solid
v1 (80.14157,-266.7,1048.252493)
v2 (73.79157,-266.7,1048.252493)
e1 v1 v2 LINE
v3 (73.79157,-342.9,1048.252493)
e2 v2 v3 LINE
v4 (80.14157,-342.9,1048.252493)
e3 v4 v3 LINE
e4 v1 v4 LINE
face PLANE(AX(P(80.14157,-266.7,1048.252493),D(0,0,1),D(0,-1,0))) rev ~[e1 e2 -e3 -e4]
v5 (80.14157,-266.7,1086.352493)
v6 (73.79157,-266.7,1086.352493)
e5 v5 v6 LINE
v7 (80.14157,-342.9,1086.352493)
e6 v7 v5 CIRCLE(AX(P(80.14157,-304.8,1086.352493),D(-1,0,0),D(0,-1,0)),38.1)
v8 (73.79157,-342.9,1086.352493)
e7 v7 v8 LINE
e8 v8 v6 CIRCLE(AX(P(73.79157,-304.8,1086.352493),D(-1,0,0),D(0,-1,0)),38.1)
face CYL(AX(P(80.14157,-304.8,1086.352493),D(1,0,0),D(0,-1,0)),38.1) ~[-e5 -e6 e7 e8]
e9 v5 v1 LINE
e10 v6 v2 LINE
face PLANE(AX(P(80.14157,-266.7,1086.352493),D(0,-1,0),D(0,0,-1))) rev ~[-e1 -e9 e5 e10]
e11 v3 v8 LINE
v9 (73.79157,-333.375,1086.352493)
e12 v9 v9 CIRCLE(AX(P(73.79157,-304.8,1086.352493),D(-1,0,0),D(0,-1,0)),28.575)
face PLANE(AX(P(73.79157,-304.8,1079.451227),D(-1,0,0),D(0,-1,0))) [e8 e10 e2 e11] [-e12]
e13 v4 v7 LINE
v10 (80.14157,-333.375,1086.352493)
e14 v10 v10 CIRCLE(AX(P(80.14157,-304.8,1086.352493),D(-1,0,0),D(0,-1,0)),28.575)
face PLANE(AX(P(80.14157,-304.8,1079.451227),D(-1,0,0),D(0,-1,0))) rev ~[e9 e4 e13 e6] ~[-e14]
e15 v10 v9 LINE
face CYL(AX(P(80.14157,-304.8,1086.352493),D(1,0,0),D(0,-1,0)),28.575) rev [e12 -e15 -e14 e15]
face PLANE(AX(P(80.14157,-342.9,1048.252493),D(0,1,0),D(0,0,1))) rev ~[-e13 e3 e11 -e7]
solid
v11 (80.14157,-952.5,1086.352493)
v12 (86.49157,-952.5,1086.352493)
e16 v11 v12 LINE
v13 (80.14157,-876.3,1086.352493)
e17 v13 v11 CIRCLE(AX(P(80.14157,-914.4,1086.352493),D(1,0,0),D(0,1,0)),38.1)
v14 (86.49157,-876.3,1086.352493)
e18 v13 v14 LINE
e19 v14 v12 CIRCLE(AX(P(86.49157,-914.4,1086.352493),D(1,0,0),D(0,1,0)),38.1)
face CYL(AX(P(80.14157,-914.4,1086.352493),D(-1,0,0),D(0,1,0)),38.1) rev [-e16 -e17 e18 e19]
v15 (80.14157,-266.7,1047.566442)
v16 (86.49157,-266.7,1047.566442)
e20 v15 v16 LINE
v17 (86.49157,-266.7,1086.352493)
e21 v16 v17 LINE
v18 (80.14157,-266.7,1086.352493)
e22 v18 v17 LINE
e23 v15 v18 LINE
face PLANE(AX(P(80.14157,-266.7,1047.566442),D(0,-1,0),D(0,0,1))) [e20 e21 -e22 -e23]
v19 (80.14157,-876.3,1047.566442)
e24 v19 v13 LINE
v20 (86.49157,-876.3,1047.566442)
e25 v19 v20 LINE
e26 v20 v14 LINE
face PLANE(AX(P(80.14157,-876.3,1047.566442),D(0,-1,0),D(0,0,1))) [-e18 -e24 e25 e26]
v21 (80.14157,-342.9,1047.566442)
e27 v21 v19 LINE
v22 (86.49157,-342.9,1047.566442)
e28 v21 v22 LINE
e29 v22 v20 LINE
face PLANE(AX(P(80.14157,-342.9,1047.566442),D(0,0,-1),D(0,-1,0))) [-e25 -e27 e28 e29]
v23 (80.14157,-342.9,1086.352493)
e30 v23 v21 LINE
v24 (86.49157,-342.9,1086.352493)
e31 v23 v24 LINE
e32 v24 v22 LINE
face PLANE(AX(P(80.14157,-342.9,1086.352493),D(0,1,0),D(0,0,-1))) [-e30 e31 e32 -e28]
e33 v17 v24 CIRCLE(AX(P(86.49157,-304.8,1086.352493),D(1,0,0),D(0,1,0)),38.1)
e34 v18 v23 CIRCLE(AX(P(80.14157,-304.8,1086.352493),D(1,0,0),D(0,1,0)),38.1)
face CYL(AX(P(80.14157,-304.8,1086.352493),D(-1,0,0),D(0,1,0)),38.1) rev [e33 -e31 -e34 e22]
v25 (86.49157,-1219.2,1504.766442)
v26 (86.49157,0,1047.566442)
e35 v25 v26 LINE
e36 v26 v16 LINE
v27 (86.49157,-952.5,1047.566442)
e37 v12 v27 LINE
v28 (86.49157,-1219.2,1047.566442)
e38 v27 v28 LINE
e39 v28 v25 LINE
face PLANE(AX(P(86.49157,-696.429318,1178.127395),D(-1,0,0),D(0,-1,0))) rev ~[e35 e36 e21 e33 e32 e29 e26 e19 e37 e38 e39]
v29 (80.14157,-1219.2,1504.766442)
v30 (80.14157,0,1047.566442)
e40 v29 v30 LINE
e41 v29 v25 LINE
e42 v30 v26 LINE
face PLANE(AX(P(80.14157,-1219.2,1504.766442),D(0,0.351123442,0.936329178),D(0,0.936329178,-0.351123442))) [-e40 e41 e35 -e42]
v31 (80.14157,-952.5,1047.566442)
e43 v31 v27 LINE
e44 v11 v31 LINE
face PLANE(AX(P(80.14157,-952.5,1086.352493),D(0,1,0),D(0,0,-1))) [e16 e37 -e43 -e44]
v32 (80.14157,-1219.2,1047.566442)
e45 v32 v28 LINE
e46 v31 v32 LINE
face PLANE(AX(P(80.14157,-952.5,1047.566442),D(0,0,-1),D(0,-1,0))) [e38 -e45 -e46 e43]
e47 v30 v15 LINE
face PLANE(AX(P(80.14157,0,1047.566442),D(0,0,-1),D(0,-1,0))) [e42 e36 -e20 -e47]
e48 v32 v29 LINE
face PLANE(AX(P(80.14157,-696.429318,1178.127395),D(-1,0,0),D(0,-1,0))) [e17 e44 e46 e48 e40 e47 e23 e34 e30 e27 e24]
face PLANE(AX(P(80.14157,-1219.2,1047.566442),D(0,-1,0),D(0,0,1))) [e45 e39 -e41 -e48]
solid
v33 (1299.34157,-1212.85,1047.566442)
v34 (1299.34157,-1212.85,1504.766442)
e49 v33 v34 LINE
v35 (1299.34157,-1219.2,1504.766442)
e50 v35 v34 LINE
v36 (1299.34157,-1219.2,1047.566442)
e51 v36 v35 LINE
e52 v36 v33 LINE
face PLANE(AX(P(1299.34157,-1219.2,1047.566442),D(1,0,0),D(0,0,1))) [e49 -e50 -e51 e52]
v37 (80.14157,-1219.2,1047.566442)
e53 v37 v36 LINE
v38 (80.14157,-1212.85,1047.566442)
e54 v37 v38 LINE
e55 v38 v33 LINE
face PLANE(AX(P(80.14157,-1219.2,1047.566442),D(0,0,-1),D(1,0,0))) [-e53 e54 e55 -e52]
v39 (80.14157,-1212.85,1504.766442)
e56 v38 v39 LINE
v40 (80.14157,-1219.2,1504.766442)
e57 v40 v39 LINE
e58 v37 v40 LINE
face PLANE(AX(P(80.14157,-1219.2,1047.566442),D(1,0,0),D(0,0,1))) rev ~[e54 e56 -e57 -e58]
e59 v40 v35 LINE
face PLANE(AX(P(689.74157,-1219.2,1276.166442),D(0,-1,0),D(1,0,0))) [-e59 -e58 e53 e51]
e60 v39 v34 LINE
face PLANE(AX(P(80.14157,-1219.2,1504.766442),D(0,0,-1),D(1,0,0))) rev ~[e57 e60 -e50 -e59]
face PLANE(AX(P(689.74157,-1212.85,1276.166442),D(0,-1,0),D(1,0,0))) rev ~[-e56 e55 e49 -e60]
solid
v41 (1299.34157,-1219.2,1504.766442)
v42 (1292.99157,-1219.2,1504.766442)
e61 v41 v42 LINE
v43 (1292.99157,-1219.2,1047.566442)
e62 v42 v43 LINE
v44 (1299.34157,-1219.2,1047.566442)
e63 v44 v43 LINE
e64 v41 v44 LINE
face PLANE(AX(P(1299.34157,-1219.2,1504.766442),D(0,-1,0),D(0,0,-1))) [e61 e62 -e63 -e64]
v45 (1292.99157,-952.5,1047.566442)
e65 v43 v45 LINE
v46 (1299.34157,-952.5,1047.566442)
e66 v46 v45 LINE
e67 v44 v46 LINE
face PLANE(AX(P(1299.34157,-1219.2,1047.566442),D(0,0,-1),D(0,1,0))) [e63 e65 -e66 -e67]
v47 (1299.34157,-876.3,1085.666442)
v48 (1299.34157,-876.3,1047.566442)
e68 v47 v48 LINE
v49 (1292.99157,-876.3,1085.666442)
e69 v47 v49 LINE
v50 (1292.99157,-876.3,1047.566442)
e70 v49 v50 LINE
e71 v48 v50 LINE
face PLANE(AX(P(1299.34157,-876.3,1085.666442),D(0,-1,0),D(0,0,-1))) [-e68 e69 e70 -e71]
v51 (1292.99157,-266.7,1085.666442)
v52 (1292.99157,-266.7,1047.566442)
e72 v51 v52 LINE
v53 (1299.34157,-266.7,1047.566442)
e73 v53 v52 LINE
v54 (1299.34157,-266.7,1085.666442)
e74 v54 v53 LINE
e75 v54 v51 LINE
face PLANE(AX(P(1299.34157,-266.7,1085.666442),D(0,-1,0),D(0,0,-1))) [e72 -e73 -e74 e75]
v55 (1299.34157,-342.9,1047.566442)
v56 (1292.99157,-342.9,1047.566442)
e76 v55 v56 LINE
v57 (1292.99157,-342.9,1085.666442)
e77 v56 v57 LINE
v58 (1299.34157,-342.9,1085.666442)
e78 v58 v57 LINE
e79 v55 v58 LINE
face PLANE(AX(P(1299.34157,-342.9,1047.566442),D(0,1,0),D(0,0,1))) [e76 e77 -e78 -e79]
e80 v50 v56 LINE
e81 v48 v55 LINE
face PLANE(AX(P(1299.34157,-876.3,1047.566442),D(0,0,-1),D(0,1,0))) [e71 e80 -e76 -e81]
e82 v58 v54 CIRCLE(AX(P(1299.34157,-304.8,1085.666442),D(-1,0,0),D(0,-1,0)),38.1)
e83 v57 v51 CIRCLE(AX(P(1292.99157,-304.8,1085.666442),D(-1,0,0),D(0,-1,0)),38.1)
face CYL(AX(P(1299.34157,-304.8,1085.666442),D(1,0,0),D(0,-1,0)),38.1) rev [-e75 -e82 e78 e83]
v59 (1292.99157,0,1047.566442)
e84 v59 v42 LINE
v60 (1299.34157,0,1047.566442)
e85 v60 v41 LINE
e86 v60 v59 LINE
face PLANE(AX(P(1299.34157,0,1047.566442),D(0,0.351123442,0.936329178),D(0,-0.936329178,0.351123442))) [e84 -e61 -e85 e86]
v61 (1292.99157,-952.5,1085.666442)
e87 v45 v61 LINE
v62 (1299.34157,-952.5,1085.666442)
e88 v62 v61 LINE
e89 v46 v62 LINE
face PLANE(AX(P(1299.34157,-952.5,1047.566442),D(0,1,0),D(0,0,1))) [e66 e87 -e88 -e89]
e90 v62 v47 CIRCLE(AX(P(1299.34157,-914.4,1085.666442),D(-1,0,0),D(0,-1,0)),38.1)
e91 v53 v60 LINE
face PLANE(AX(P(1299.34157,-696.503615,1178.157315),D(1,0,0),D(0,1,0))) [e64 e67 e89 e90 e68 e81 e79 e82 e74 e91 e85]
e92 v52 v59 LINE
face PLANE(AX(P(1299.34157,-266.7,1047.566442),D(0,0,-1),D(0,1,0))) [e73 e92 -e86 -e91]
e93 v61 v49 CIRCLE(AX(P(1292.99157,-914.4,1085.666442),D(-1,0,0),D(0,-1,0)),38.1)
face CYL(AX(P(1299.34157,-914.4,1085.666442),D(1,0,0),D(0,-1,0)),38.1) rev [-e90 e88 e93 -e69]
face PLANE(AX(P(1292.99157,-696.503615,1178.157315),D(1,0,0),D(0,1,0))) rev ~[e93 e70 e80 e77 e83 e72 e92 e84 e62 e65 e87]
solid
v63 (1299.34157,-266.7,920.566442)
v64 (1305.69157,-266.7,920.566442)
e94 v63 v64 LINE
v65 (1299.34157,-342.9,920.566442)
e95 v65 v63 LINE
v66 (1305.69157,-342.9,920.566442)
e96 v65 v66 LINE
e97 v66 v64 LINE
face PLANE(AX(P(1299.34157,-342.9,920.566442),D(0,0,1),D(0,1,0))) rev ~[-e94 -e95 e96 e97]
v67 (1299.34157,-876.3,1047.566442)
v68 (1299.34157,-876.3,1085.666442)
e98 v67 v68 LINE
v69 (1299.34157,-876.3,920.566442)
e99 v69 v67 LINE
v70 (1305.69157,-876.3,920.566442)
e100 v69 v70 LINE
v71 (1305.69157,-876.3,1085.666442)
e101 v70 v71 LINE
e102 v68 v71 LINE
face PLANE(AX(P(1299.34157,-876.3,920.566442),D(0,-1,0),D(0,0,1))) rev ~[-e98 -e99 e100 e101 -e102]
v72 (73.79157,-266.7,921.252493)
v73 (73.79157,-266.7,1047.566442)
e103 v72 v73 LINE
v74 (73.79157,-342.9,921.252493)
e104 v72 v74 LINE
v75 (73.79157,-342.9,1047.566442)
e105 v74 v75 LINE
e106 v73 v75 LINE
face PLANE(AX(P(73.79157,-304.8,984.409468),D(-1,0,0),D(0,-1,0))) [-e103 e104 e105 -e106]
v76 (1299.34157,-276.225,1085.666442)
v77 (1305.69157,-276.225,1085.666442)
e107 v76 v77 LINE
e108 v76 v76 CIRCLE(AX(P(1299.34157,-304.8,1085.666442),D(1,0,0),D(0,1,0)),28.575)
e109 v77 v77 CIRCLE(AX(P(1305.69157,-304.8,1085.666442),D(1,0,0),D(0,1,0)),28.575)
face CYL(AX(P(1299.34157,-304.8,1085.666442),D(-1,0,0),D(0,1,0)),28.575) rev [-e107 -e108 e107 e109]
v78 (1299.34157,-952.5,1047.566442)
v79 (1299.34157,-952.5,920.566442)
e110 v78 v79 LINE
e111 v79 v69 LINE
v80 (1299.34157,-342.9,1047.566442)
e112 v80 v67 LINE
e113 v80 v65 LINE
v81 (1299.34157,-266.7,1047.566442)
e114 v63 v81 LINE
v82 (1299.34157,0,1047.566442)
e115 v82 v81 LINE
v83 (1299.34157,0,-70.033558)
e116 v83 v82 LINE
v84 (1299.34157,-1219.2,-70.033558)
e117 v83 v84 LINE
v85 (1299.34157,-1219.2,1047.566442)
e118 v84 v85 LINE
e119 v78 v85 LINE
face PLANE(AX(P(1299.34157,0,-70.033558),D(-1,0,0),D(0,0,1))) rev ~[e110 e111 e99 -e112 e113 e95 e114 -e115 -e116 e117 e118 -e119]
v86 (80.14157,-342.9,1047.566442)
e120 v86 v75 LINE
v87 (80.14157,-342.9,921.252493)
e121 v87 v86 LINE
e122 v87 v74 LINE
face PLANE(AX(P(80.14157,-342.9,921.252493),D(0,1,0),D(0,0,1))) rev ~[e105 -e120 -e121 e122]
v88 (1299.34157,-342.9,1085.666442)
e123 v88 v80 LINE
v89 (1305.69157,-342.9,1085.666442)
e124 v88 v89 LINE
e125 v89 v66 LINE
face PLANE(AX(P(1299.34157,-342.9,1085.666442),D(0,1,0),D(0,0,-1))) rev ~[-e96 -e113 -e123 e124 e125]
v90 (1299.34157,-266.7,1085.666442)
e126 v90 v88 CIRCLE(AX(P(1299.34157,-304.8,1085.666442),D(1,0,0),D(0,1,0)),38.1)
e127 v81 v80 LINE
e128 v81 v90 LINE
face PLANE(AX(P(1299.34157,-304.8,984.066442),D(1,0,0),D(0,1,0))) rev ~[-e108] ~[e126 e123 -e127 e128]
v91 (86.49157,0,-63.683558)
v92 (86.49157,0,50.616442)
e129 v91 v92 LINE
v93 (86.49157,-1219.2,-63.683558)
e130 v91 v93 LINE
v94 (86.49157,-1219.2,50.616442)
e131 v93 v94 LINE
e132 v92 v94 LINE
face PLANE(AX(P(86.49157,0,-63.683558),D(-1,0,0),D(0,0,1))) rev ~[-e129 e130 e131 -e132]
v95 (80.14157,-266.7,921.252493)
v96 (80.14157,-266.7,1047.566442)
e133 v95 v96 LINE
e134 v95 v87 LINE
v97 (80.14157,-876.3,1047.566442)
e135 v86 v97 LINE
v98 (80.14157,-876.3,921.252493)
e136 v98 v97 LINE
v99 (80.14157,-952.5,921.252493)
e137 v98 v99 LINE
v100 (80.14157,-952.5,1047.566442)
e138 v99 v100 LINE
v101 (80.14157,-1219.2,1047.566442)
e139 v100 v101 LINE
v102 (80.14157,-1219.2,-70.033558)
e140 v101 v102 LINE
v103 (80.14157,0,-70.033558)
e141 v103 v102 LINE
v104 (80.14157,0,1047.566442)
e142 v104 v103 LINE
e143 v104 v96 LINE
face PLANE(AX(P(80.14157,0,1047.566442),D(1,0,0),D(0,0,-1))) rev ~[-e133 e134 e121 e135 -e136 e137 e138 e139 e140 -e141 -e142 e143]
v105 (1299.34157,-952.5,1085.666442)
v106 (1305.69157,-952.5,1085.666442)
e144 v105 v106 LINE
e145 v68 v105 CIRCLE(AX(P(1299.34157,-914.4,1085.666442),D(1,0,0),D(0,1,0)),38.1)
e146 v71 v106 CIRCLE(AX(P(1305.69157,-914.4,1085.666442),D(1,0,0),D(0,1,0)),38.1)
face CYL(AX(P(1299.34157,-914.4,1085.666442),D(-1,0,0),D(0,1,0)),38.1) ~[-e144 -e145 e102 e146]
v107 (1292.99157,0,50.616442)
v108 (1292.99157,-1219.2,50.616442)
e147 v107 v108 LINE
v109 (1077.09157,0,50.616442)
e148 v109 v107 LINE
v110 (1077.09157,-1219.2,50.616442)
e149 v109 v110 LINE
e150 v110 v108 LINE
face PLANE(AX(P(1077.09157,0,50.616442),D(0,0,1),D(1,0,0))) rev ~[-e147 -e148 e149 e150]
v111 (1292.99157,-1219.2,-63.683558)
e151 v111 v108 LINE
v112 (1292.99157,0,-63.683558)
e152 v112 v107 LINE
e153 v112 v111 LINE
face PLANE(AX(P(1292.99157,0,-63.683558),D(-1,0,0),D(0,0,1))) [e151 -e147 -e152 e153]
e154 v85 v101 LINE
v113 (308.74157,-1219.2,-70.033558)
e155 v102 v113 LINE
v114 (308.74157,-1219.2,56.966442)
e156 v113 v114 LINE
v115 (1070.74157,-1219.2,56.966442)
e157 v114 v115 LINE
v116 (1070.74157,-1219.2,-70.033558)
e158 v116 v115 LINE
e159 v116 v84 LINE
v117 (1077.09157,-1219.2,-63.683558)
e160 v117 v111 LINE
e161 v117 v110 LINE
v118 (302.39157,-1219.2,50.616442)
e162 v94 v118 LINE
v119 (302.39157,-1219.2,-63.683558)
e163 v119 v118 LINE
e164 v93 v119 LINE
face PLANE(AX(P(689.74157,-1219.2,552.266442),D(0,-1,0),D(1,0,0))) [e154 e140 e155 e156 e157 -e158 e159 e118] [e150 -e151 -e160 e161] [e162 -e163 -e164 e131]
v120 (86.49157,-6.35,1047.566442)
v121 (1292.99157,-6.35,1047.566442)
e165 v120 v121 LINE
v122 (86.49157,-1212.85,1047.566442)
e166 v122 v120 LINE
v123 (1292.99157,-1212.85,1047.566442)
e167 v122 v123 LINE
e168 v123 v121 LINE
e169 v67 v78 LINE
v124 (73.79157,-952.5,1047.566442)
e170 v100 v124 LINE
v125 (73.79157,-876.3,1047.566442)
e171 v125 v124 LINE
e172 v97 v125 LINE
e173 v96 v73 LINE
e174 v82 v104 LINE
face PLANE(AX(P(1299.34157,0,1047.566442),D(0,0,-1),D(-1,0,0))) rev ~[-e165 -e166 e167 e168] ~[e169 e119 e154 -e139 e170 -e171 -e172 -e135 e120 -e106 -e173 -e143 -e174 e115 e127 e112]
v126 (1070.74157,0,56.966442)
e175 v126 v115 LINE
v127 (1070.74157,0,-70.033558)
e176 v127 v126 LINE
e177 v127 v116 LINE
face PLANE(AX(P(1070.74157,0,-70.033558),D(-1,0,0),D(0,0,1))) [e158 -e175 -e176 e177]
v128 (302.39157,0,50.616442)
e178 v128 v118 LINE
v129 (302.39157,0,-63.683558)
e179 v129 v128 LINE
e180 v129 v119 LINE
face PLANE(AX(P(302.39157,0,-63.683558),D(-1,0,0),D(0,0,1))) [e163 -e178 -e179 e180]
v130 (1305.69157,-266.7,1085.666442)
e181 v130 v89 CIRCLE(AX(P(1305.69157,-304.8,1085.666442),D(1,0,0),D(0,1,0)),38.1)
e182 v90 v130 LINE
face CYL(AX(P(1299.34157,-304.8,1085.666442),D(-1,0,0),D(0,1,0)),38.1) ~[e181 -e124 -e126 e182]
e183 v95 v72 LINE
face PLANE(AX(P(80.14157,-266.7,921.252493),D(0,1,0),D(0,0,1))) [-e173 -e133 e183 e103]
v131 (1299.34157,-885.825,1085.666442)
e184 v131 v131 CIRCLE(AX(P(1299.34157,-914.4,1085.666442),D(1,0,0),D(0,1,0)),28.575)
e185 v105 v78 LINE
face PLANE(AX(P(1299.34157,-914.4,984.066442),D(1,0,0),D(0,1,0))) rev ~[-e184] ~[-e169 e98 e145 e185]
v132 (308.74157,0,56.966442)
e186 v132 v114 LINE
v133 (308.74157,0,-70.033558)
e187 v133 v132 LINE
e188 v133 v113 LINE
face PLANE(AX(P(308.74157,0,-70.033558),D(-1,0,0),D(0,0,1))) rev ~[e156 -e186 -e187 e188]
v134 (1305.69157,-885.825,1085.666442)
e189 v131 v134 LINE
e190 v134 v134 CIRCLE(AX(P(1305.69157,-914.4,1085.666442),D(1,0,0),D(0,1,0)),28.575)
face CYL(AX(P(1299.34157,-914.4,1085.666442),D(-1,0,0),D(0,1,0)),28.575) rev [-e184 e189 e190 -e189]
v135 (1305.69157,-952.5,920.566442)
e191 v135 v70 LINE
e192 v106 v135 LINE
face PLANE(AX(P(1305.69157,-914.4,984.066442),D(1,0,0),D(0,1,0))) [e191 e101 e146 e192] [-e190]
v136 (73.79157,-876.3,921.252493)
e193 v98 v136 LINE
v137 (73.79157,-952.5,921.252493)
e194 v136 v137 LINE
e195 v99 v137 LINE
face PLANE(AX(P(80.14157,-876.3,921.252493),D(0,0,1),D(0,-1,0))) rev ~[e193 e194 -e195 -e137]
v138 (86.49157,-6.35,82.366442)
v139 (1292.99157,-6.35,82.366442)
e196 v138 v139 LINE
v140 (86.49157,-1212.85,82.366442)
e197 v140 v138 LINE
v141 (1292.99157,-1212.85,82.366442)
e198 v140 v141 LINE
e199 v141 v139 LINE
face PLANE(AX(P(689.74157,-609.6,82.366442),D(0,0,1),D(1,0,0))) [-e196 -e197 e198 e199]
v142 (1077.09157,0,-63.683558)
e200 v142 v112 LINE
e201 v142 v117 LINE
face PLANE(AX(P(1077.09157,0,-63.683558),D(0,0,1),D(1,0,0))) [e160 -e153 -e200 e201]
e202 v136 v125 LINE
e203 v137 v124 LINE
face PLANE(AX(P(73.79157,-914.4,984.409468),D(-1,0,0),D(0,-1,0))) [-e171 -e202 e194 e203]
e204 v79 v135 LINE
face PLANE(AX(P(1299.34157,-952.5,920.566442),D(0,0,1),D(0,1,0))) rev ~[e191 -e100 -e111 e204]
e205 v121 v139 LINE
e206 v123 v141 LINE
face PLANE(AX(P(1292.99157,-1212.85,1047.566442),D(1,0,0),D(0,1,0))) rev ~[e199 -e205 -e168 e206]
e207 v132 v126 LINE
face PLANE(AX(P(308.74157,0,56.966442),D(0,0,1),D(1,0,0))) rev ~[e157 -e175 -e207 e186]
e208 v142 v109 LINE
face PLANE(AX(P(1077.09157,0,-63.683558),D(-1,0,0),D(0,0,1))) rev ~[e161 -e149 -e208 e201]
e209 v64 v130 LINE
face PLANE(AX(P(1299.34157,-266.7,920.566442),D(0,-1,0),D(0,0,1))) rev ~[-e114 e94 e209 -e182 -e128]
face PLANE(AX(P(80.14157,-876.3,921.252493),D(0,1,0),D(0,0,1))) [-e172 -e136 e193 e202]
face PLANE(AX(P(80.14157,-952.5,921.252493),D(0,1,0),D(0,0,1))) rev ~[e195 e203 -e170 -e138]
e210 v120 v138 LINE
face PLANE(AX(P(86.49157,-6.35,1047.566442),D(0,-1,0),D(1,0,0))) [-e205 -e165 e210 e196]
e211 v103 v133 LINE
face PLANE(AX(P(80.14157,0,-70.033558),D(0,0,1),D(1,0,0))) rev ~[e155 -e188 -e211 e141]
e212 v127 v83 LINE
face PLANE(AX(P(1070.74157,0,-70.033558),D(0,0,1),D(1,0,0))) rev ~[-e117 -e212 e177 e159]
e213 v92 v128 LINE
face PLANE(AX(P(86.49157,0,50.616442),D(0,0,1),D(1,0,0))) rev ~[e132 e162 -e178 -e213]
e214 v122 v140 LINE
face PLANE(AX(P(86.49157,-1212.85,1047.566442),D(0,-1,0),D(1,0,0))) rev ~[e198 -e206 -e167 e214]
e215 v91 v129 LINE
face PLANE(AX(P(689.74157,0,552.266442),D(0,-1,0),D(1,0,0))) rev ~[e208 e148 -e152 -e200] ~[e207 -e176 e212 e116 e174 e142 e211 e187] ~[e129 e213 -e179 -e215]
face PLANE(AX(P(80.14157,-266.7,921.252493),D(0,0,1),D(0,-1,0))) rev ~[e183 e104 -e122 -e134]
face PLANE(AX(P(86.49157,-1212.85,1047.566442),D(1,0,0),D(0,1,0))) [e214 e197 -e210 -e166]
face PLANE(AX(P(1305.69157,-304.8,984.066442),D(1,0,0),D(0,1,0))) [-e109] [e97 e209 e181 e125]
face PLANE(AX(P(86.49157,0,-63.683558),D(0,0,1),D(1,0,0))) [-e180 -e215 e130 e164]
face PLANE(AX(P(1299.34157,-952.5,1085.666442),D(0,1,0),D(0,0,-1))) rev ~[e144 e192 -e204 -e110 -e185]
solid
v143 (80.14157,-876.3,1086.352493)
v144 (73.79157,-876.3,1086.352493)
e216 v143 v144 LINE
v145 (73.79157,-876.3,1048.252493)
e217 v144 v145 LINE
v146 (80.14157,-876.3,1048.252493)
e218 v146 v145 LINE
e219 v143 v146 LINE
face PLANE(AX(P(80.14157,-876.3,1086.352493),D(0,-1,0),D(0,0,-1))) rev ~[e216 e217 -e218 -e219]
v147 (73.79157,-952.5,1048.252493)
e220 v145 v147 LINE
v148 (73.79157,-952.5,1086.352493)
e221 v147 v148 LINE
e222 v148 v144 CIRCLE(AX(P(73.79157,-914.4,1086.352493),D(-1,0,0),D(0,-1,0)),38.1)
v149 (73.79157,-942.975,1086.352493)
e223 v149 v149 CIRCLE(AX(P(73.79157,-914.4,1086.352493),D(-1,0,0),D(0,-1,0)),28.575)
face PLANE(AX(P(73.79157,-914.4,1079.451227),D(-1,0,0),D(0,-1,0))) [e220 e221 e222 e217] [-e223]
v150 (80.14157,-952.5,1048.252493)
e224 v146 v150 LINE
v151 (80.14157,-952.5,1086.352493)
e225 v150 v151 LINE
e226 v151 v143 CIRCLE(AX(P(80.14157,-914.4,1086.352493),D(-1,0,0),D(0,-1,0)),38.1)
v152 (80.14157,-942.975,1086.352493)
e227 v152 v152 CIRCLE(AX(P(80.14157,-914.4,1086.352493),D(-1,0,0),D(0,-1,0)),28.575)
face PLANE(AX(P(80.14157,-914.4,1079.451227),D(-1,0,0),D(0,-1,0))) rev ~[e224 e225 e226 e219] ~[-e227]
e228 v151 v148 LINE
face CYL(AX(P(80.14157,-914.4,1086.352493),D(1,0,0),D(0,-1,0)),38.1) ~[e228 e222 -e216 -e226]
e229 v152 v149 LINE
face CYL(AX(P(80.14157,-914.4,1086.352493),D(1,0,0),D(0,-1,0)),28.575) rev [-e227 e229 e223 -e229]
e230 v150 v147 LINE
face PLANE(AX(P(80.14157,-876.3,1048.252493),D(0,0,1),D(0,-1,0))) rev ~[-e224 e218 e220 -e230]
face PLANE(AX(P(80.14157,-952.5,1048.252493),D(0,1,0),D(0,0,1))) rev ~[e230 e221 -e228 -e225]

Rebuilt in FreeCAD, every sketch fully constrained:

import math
import FreeCAD as App
import Part
import Sketcher

V = App.Vector
Q = App.Units.Quantity

doc = App.newDocument("Part")
body = doc.addObject("PartDesign::Body", "Body")

sketch1 = doc.addObject("Sketcher::SketchObject", "Sketch")
body.addObject(sketch1)
sketch1.AttachmentSupport = (doc.XZ_Plane, [""])
sketch1.MapMode = "FlatFace"
sketch1.addGeometry([
    Part.LineSegment(V(1299, 1048, 0), V(80, 1048, 0)),
    Part.LineSegment(V(80, 1048, 0), V(80, -70, 0)),
    Part.LineSegment(V(80, -70, 0), V(309, -70, 0)),
    Part.LineSegment(V(309, -70, 0), V(309, 57, 0)),
    Part.LineSegment(V(309, 57, 0), V(1071, 57, 0)),
    Part.LineSegment(V(1071, 57, 0), V(1071, -70, 0)),
    Part.LineSegment(V(1071, -70, 0), V(1299, -70, 0)),
    Part.LineSegment(V(1299, -70, 0), V(1299, 1048, 0)),
    Part.LineSegment(V(302, -64, 0), V(86, -64, 0)),
    Part.LineSegment(V(86, -64, 0), V(86, 51, 0)),
    Part.LineSegment(V(86, 51, 0), V(302, 51, 0)),
    Part.LineSegment(V(302, 51, 0), V(302, -64, 0)),
    Part.LineSegment(V(1293, -64, 0), V(1077, -64, 0)),
    Part.LineSegment(V(1077, -64, 0), V(1077, 51, 0)),
    Part.LineSegment(V(1077, 51, 0), V(1293, 51, 0)),
    Part.LineSegment(V(1293, 51, 0), V(1293, -64, 0)),
], False)
sketch1.addConstraint([
    Sketcher.Constraint("Coincident", 0, 2, 1, 1),
    Sketcher.Constraint("Coincident", 1, 2, 2, 1),
    Sketcher.Constraint("Coincident", 2, 2, 3, 1),
    Sketcher.Constraint("Coincident", 3, 2, 4, 1),
    Sketcher.Constraint("Coincident", 4, 2, 5, 1),
    Sketcher.Constraint("Coincident", 5, 2, 6, 1),
    Sketcher.Constraint("Coincident", 6, 2, 7, 1),
    Sketcher.Constraint("Coincident", 7, 2, 0, 1),
    Sketcher.Constraint("Coincident", 8, 2, 9, 1),
    Sketcher.Constraint("Coincident", 9, 2, 10, 1),
    Sketcher.Constraint("Coincident", 10, 2, 11, 1),
    Sketcher.Constraint("Coincident", 11, 2, 8, 1),
    Sketcher.Constraint("Coincident", 12, 2, 13, 1),
    Sketcher.Constraint("Coincident", 13, 2, 14, 1),
    Sketcher.Constraint("Coincident", 14, 2, 15, 1),
    Sketcher.Constraint("Coincident", 15, 2, 12, 1),
    Sketcher.Constraint("Horizontal", 0),
    Sketcher.Constraint("Vertical", 1),
    Sketcher.Constraint("Horizontal", 2),
    Sketcher.Constraint("Vertical", 3),
    Sketcher.Constraint("Horizontal", 4),
    Sketcher.Constraint("Vertical", 5),
    Sketcher.Constraint("Horizontal", 6),
    Sketcher.Constraint("Vertical", 7),
    Sketcher.Constraint("Horizontal", 8),
    Sketcher.Constraint("Vertical", 9),
    Sketcher.Constraint("Horizontal", 10),
    Sketcher.Constraint("Vertical", 11),
    Sketcher.Constraint("Horizontal", 12),
    Sketcher.Constraint("Vertical", 13),
    Sketcher.Constraint("Horizontal", 14),
    Sketcher.Constraint("Vertical", 15),
    Sketcher.Constraint("Horizontal", 2, 2, 5, 2),
    Sketcher.Constraint("Horizontal", 11, 2, 12, 2),
    Sketcher.Constraint("Horizontal", 10, 2, 13, 2),
    Sketcher.Constraint("Equal", 2, 6),
    Sketcher.Constraint("Equal", 10, 12),
    Sketcher.Constraint("DistanceX", 0, 2, 0, 1, Q("48 in")),
    Sketcher.Constraint("DistanceX", 2, 1, 2, 2, Q("9 in")),
    Sketcher.Constraint("DistanceY", 1, 2, 1, 1, Q("44 in")),
    Sketcher.Constraint("DistanceY", 3, 1, 3, 2, Q("5 in")),
    Sketcher.Constraint("DistanceX", 8, 2, 8, 1, Q("8.5 in")),
    Sketcher.Constraint("DistanceY", 9, 1, 9, 2, Q("4.5 in")),
    Sketcher.Constraint("DistanceX", 11, 2, 12, 2, Q("30.5 in")),
    Sketcher.Constraint("DistanceX", 1, 2, 8, 2, Q("0.25 in")),
    Sketcher.Constraint("DistanceY", 1, 2, 8, 2, Q("0.25 in")),
    Sketcher.Constraint("DistanceX", -1, 1, 0, 2, Q("80.14157 mm")),
    Sketcher.Constraint("DistanceY", -1, 1, 0, 2, Q("1047.566442 mm")),
])
pad1 = doc.addObject("PartDesign::Pad", "Pad")
body.addObject(pad1)
pad1.Profile = sketch1
pad1.Length = Q("48 in")

sketch2 = doc.addObject("Sketcher::SketchObject", "Sketch001")
body.addObject(sketch2)
sketch2.AttachmentSupport = (doc.XY_Plane, [""])
sketch2.MapMode = "FlatFace"
sketch2.AttachmentOffset = App.Placement(V(0, 0, 1047.566442), App.Rotation())
sketch2.addGeometry([
    Part.LineSegment(V(86, -6, 0), V(86, -1213, 0)),
    Part.LineSegment(V(86, -1213, 0), V(1293, -1213, 0)),
    Part.LineSegment(V(1293, -1213, 0), V(1293, -6, 0)),
    Part.LineSegment(V(1293, -6, 0), V(86, -6, 0)),
], False)
sketch2.addConstraint([
    Sketcher.Constraint("Coincident", 0, 2, 1, 1),
    Sketcher.Constraint("Coincident", 1, 2, 2, 1),
    Sketcher.Constraint("Coincident", 2, 2, 3, 1),
    Sketcher.Constraint("Coincident", 3, 2, 0, 1),
    Sketcher.Constraint("Vertical", 0),
    Sketcher.Constraint("Horizontal", 1),
    Sketcher.Constraint("Vertical", 2),
    Sketcher.Constraint("Horizontal", 3),
    Sketcher.Constraint("Equal", 3, 0),
    Sketcher.Constraint("DistanceX", 1, 1, 1, 2, Q("47.5 in")),
    Sketcher.Constraint("DistanceY", 0, 2, -1, 1, Q("47.75 in")),
    Sketcher.Constraint("DistanceX", -1, 1, 0, 2, Q("86.49157 mm")),
])
pocket1 = doc.addObject("PartDesign::Pocket", "Pocket")
body.addObject(pocket1)
pocket1.Profile = sketch2
pocket1.Length = Q("38 in")

sketch3 = doc.addObject("Sketcher::SketchObject", "Sketch002")
body.addObject(sketch3)
sketch3.AttachmentSupport = (doc.XZ_Plane, [""])
sketch3.MapMode = "FlatFace"
sketch3.addGeometry([
    Part.LineSegment(V(1077, 51, 0), V(1077, -64, 0)),
    Part.LineSegment(V(1077, -64, 0), V(1293, -64, 0)),
    Part.LineSegment(V(1293, -64, 0), V(1293, 51, 0)),
    Part.LineSegment(V(1293, 51, 0), V(1077, 51, 0)),
    Part.LineSegment(V(86, 51, 0), V(86, -64, 0)),
    Part.LineSegment(V(86, -64, 0), V(302, -64, 0)),
    Part.LineSegment(V(302, -64, 0), V(302, 51, 0)),
    Part.LineSegment(V(302, 51, 0), V(86, 51, 0)),
], False)
sketch3.addConstraint([
    Sketcher.Constraint("Coincident", 0, 2, 1, 1),
    Sketcher.Constraint("Coincident", 1, 2, 2, 1),
    Sketcher.Constraint("Coincident", 2, 2, 3, 1),
    Sketcher.Constraint("Coincident", 3, 2, 0, 1),
    Sketcher.Constraint("Coincident", 4, 2, 5, 1),
    Sketcher.Constraint("Coincident", 5, 2, 6, 1),
    Sketcher.Constraint("Coincident", 6, 2, 7, 1),
    Sketcher.Constraint("Coincident", 7, 2, 4, 1),
    Sketcher.Constraint("Vertical", 0),
    Sketcher.Constraint("Horizontal", 1),
    Sketcher.Constraint("Vertical", 2),
    Sketcher.Constraint("Horizontal", 3),
    Sketcher.Constraint("Vertical", 4),
    Sketcher.Constraint("Horizontal", 5),
    Sketcher.Constraint("Vertical", 6),
    Sketcher.Constraint("Horizontal", 7),
    Sketcher.Constraint("Horizontal", 1, 2, 4, 2),
    Sketcher.Constraint("Horizontal", 3, 2, 6, 2),
    Sketcher.Constraint("Equal", 3, 5),
    Sketcher.Constraint("DistanceX", 1, 1, 1, 2, Q("8.5 in")),
    Sketcher.Constraint("DistanceY", 0, 2, 0, 1, Q("4.5 in")),
    Sketcher.Constraint("DistanceX", 4, 2, 0, 2, Q("39 in")),
    Sketcher.Constraint("DistanceX", -1, 1, 0, 2, Q("1077.09157 mm")),
    Sketcher.Constraint("DistanceY", 0, 2, -1, 1, Q("63.683558 mm")),
])
pocket2 = doc.addObject("PartDesign::Pocket", "Pocket001")
body.addObject(pocket2)
pocket2.Profile = sketch3
pocket2.Length = Q("48 in")
pocket2.Reversed = True

sketch4 = doc.addObject("Sketcher::SketchObject", "Sketch003")
body.addObject(sketch4)
sketch4.AttachmentSupport = (doc.YZ_Plane, [""])
sketch4.MapMode = "FlatFace"
sketch4.AttachmentOffset = App.Placement(V(0, 0, 80.14157), App.Rotation())
sketch4.addGeometry([
    Part.LineSegment(V(-267, 1048, 0), V(-267, 921, 0)),
    Part.LineSegment(V(-267, 921, 0), V(-343, 921, 0)),
    Part.LineSegment(V(-343, 921, 0), V(-343, 1048, 0)),
    Part.LineSegment(V(-343, 1048, 0), V(-267, 1048, 0)),
    Part.LineSegment(V(-876, 1048, 0), V(-876, 921, 0)),
    Part.LineSegment(V(-876, 921, 0), V(-952, 921, 0)),
    Part.LineSegment(V(-952, 921, 0), V(-952, 1048, 0)),
    Part.LineSegment(V(-952, 1048, 0), V(-876, 1048, 0)),
], False)
sketch4.addConstraint([
    Sketcher.Constraint("Coincident", 0, 2, 1, 1),
    Sketcher.Constraint("Coincident", 1, 2, 2, 1),
    Sketcher.Constraint("Coincident", 2, 2, 3, 1),
    Sketcher.Constraint("Coincident", 3, 2, 0, 1),
    Sketcher.Constraint("Coincident", 4, 2, 5, 1),
    Sketcher.Constraint("Coincident", 5, 2, 6, 1),
    Sketcher.Constraint("Coincident", 6, 2, 7, 1),
    Sketcher.Constraint("Coincident", 7, 2, 4, 1),
    Sketcher.Constraint("Vertical", 0),
    Sketcher.Constraint("Horizontal", 1),
    Sketcher.Constraint("Vertical", 2),
    Sketcher.Constraint("Horizontal", 3),
    Sketcher.Constraint("Vertical", 4),
    Sketcher.Constraint("Horizontal", 5),
    Sketcher.Constraint("Vertical", 6),
    Sketcher.Constraint("Horizontal", 7),
    Sketcher.Constraint("Horizontal", 1, 2, 4, 2),
    Sketcher.Constraint("Horizontal", 3, 2, 6, 2),
    Sketcher.Constraint("Equal", 3, 5),
    Sketcher.Constraint("DistanceX", 1, 2, 1, 1, Q("3 in")),
    Sketcher.Constraint("DistanceX", 4, 2, 1, 2, Q("21 in")),
    Sketcher.Constraint("DistanceX", 0, 2, -1, 1, Q("10.5 in")),
    Sketcher.Constraint("DistanceY", 0, 2, 0, 1, Q("126.313949 mm")),
    Sketcher.Constraint("DistanceY", -1, 1, 0, 2, Q("921.252493 mm")),
])
pad2 = doc.addObject("PartDesign::Pad", "Pad001")
body.addObject(pad2)
pad2.Profile = sketch4
pad2.Length = Q("0.25 in")
pad2.Reversed = True

sketch5 = doc.addObject("Sketcher::SketchObject", "Sketch004")
body.addObject(sketch5)
sketch5.AttachmentSupport = (doc.YZ_Plane, [""])
sketch5.MapMode = "FlatFace"
sketch5.AttachmentOffset = App.Placement(V(0, 0, 1299.34157), App.Rotation())
sketch5.addGeometry([
    Part.LineSegment(V(-952, 921, 0), V(-876, 921, 0)),
    Part.LineSegment(V(-876, 921, 0), V(-876, 1086, 0)),
    Part.ArcOfCircle(Part.Circle(V(-914, 1086, 0), V(0, 0, 1), 38), math.radians(0), math.radians(180)),
    Part.LineSegment(V(-952, 1086, 0), V(-952, 921, 0)),
    Part.Circle(V(-914, 1086, 0), V(0, 0, 1), 29),
    Part.LineSegment(V(-343, 921, 0), V(-267, 921, 0)),
    Part.LineSegment(V(-267, 921, 0), V(-267, 1086, 0)),
    Part.ArcOfCircle(Part.Circle(V(-305, 1086, 0), V(0, 0, 1), 38), math.radians(0), math.radians(180)),
    Part.LineSegment(V(-343, 1086, 0), V(-343, 921, 0)),
    Part.Circle(V(-305, 1086, 0), V(0, 0, 1), 29),
], False)
sketch5.addConstraint([
    Sketcher.Constraint("Coincident", 0, 2, 1, 1),
    Sketcher.Constraint("Tangent", 1, 2, 2, 1),
    Sketcher.Constraint("Tangent", 2, 2, 3, 1),
    Sketcher.Constraint("Coincident", 3, 2, 0, 1),
    Sketcher.Constraint("Coincident", 5, 2, 6, 1),
    Sketcher.Constraint("Tangent", 6, 2, 7, 1),
    Sketcher.Constraint("Tangent", 7, 2, 8, 1),
    Sketcher.Constraint("Coincident", 8, 2, 5, 1),
    Sketcher.Constraint("Horizontal", 0),
    Sketcher.Constraint("Vertical", 1),
    Sketcher.Constraint("Vertical", 3),
    Sketcher.Constraint("Horizontal", 5),
    Sketcher.Constraint("Vertical", 6),
    Sketcher.Constraint("Vertical", 8),
    Sketcher.Constraint("Coincident", 4, 3, 2, 3),
    Sketcher.Constraint("Coincident", 9, 3, 7, 3),
    Sketcher.Constraint("Equal", 2, 7),
    Sketcher.Constraint("Equal", 4, 9),
    Sketcher.Constraint("Horizontal", 4, 3, 7, 3),
    Sketcher.Constraint("Horizontal", 3, 2, 5, 2),
    Sketcher.Constraint("Radius", 2, Q("1.5 in")),
    Sketcher.Constraint("Diameter", 4, Q("2.25 in")),
    Sketcher.Constraint("DistanceY", 1, 1, 1, 2, Q("6.5 in")),
    Sketcher.Constraint("DistanceX", 2, 3, -1, 1, Q("36 in")),
    Sketcher.Constraint("DistanceX", 7, 3, -1, 1, Q("12 in")),
    Sketcher.Constraint("DistanceY", -1, 1, 2, 3, Q("1085.666442 mm")),
])
pad3 = doc.addObject("PartDesign::Pad", "Pad002")
body.addObject(pad3)
pad3.Profile = sketch5
pad3.Length = Q("0.25 in")
body2 = doc.addObject("PartDesign::Body", "Body001")

sketch6 = doc.addObject("Sketcher::SketchObject", "Sketch005")
body2.addObject(sketch6)
sketch6.AttachmentSupport = (doc.getObject("YZ_Plane001"), [""])
sketch6.MapMode = "FlatFace"
sketch6.AttachmentOffset = App.Placement(V(0, 0, 80.14157), App.Rotation())
sketch6.addGeometry([
    Part.LineSegment(V(-267, 1048, 0), V(-343, 1048, 0)),
    Part.LineSegment(V(-343, 1048, 0), V(-343, 1086, 0)),
    Part.ArcOfCircle(Part.Circle(V(-305, 1086, 0), V(0, 0, 1), 38), math.radians(0), math.radians(180)),
    Part.LineSegment(V(-267, 1086, 0), V(-267, 1048, 0)),
    Part.Circle(V(-305, 1086, 0), V(0, 0, 1), 29),
], False)
sketch6.addConstraint([
    Sketcher.Constraint("Coincident", 0, 2, 1, 1),
    Sketcher.Constraint("Tangent", 1, 2, 2, 2),
    Sketcher.Constraint("Tangent", 2, 1, 3, 1),
    Sketcher.Constraint("Coincident", 3, 2, 0, 1),
    Sketcher.Constraint("Horizontal", 0),
    Sketcher.Constraint("Vertical", 1),
    Sketcher.Constraint("Vertical", 3),
    Sketcher.Constraint("Coincident", 4, 3, 2, 3),
    Sketcher.Constraint("Radius", 2, Q("1.5 in")),
    Sketcher.Constraint("Diameter", 4, Q("2.25 in")),
    Sketcher.Constraint("DistanceY", 1, 1, 1, 2, Q("1.5 in")),
    Sketcher.Constraint("DistanceX", 2, 3, -1, 1, Q("12 in")),
    Sketcher.Constraint("DistanceY", -1, 1, 2, 3, Q("1086.352493 mm")),
])
pad4 = doc.addObject("PartDesign::Pad", "Pad003")
body2.addObject(pad4)
pad4.Profile = sketch6
pad4.Length = Q("0.25 in")
pad4.Reversed = True
body3 = doc.addObject("PartDesign::Body", "Body002")

sketch7 = doc.addObject("Sketcher::SketchObject", "Sketch006")
body3.addObject(sketch7)
sketch7.AttachmentSupport = (doc.getObject("YZ_Plane002"), [""])
sketch7.MapMode = "FlatFace"
sketch7.AttachmentOffset = App.Placement(V(0, 0, 80.14157), App.Rotation())
sketch7.addGeometry([
    Part.LineSegment(V(-876, 1086, 0), V(-876, 1048, 0)),
    Part.LineSegment(V(-876, 1048, 0), V(-952, 1048, 0)),
    Part.LineSegment(V(-952, 1048, 0), V(-952, 1086, 0)),
    Part.ArcOfCircle(Part.Circle(V(-914, 1086, 0), V(0, 0, 1), 38), math.radians(0), math.radians(180)),
    Part.Circle(V(-914, 1086, 0), V(0, 0, 1), 29),
], False)
sketch7.addConstraint([
    Sketcher.Constraint("Coincident", 0, 2, 1, 1),
    Sketcher.Constraint("Coincident", 1, 2, 2, 1),
    Sketcher.Constraint("Tangent", 2, 2, 3, 2),
    Sketcher.Constraint("Tangent", 3, 1, 0, 1),
    Sketcher.Constraint("Vertical", 0),
    Sketcher.Constraint("Horizontal", 1),
    Sketcher.Constraint("Vertical", 2),
    Sketcher.Constraint("Coincident", 4, 3, 3, 3),
    Sketcher.Constraint("Radius", 3, Q("1.5 in")),
    Sketcher.Constraint("Diameter", 4, Q("2.25 in")),
    Sketcher.Constraint("DistanceY", 0, 2, 0, 1, Q("1.5 in")),
    Sketcher.Constraint("DistanceX", 3, 3, -1, 1, Q("36 in")),
    Sketcher.Constraint("DistanceY", -1, 1, 3, 3, Q("1086.352493 mm")),
])
pad5 = doc.addObject("PartDesign::Pad", "Pad004")
body3.addObject(pad5)
pad5.Profile = sketch7
pad5.Length = Q("0.25 in")
pad5.Reversed = True
body4 = doc.addObject("PartDesign::Body", "Body003")

sketch8 = doc.addObject("Sketcher::SketchObject", "Sketch007")
body4.addObject(sketch8)
sketch8.AttachmentSupport = (doc.getObject("YZ_Plane003"), [""])
sketch8.MapMode = "FlatFace"
sketch8.AttachmentOffset = App.Placement(V(0, 0, 80.14157), App.Rotation())
sketch8.addGeometry([
    Part.LineSegment(V(-343, 1048, 0), V(-876, 1048, 0)),
    Part.LineSegment(V(-876, 1048, 0), V(-876, 1086, 0)),
    Part.ArcOfCircle(Part.Circle(V(-914, 1086, 0), V(0, 0, 1), 38), math.radians(0), math.radians(180)),
    Part.LineSegment(V(-952, 1086, 0), V(-952, 1048, 0)),
    Part.LineSegment(V(-952, 1048, 0), V(-1219, 1048, 0)),
    Part.LineSegment(V(-1219, 1048, 0), V(-1219, 1505, 0)),
    Part.LineSegment(V(-1219, 1505, 0), V(0, 1048, 0)),
    Part.LineSegment(V(0, 1048, 0), V(-267, 1048, 0)),
    Part.LineSegment(V(-267, 1048, 0), V(-267, 1086, 0)),
    Part.ArcOfCircle(Part.Circle(V(-305, 1086, 0), V(0, 0, 1), 38), math.radians(0), math.radians(180)),
    Part.LineSegment(V(-343, 1086, 0), V(-343, 1048, 0)),
], False)
sketch8.addConstraint([
    Sketcher.Constraint("Coincident", 0, 2, 1, 1),
    Sketcher.Constraint("Tangent", 1, 2, 2, 1),
    Sketcher.Constraint("Tangent", 2, 2, 3, 1),
    Sketcher.Constraint("Coincident", 3, 2, 4, 1),
    Sketcher.Constraint("Coincident", 4, 2, 5, 1),
    Sketcher.Constraint("Coincident", 5, 2, 6, 1),
    Sketcher.Constraint("Coincident", 6, 2, 7, 1),
    Sketcher.Constraint("Coincident", 7, 2, 8, 1),
    Sketcher.Constraint("Tangent", 8, 2, 9, 1),
    Sketcher.Constraint("Tangent", 9, 2, 10, 1),
    Sketcher.Constraint("Coincident", 10, 2, 0, 1),
    Sketcher.Constraint("Horizontal", 0),
    Sketcher.Constraint("Vertical", 1),
    Sketcher.Constraint("Vertical", 3),
    Sketcher.Constraint("Horizontal", 4),
    Sketcher.Constraint("Vertical", 5),
    Sketcher.Constraint("Horizontal", 7),
    Sketcher.Constraint("Vertical", 8),
    Sketcher.Constraint("Vertical", 10),
    Sketcher.Constraint("Equal", 2, 9),
    Sketcher.Constraint("PointOnObject", 6, 2, -2),
    Sketcher.Constraint("Horizontal", 2, 3, 9, 3),
    Sketcher.Constraint("Horizontal", 0, 2, 3, 2),
    Sketcher.Constraint("Horizontal", 4, 2, 6, 2),
    Sketcher.Constraint("Equal", 4, 7),
    Sketcher.Constraint("Radius", 2, Q("1.5 in")),
    Sketcher.Constraint("DistanceX", 0, 2, 0, 1, Q("21 in")),
    Sketcher.Constraint("DistanceY", 5, 1, 5, 2, Q("18 in")),
    Sketcher.Constraint("DistanceX", 4, 2, 4, 1, Q("10.5 in")),
    Sketcher.Constraint("DistanceY", 1, 1, 1, 2, Q("38.786051 mm")),
    Sketcher.Constraint("DistanceY", -1, 1, 2, 3, Q("1086.352493 mm")),
])
pad6 = doc.addObject("PartDesign::Pad", "Pad005")
body4.addObject(pad6)
pad6.Profile = sketch8
pad6.Length = Q("0.25 in")
body5 = doc.addObject("PartDesign::Body", "Body004")

sketch9 = doc.addObject("Sketcher::SketchObject", "Sketch008")
body5.addObject(sketch9)
sketch9.AttachmentSupport = (doc.getObject("YZ_Plane004"), [""])
sketch9.MapMode = "FlatFace"
sketch9.AttachmentOffset = App.Placement(V(0, 0, 1299.34157), App.Rotation())
sketch9.addGeometry([
    Part.LineSegment(V(-876, 1086, 0), V(-876, 1048, 0)),
    Part.LineSegment(V(-876, 1048, 0), V(-343, 1048, 0)),
    Part.LineSegment(V(-343, 1048, 0), V(-343, 1086, 0)),
    Part.ArcOfCircle(Part.Circle(V(-305, 1086, 0), V(0, 0, 1), 38), math.radians(0), math.radians(180)),
    Part.LineSegment(V(-267, 1086, 0), V(-267, 1048, 0)),
    Part.LineSegment(V(-267, 1048, 0), V(0, 1048, 0)),
    Part.LineSegment(V(0, 1048, 0), V(-1219, 1505, 0)),
    Part.LineSegment(V(-1219, 1505, 0), V(-1219, 1048, 0)),
    Part.LineSegment(V(-1219, 1048, 0), V(-952, 1048, 0)),
    Part.LineSegment(V(-952, 1048, 0), V(-952, 1086, 0)),
    Part.ArcOfCircle(Part.Circle(V(-914, 1086, 0), V(0, 0, 1), 38), math.radians(0), math.radians(180)),
], False)
sketch9.addConstraint([
    Sketcher.Constraint("Coincident", 0, 2, 1, 1),
    Sketcher.Constraint("Coincident", 1, 2, 2, 1),
    Sketcher.Constraint("Tangent", 2, 2, 3, 2),
    Sketcher.Constraint("Tangent", 3, 1, 4, 1),
    Sketcher.Constraint("Coincident", 4, 2, 5, 1),
    Sketcher.Constraint("Coincident", 5, 2, 6, 1),
    Sketcher.Constraint("Coincident", 6, 2, 7, 1),
    Sketcher.Constraint("Coincident", 7, 2, 8, 1),
    Sketcher.Constraint("Coincident", 8, 2, 9, 1),
    Sketcher.Constraint("Tangent", 9, 2, 10, 2),
    Sketcher.Constraint("Tangent", 10, 1, 0, 1),
    Sketcher.Constraint("Vertical", 0),
    Sketcher.Constraint("Horizontal", 1),
    Sketcher.Constraint("Vertical", 2),
    Sketcher.Constraint("Vertical", 4),
    Sketcher.Constraint("Horizontal", 5),
    Sketcher.Constraint("Vertical", 7),
    Sketcher.Constraint("Horizontal", 8),
    Sketcher.Constraint("Vertical", 9),
    Sketcher.Constraint("Equal", 3, 10),
    Sketcher.Constraint("PointOnObject", 5, 2, -2),
    Sketcher.Constraint("Horizontal", 3, 3, 10, 3),
    Sketcher.Constraint("Horizontal", 1, 2, 4, 2),
    Sketcher.Constraint("Horizontal", 5, 2, 7, 2),
    Sketcher.Constraint("Equal", 5, 8),
    Sketcher.Constraint("Radius", 3, Q("1.5 in")),
    Sketcher.Constraint("DistanceX", 1, 1, 1, 2, Q("21 in")),
    Sketcher.Constraint("DistanceY", 7, 2, 7, 1, Q("18 in")),
    Sketcher.Constraint("DistanceX", 5, 1, 5, 2, Q("10.5 in")),
    Sketcher.Constraint("DistanceY", 0, 2, 0, 1, Q("1.5 in")),
    Sketcher.Constraint("DistanceY", -1, 1, 3, 3, Q("1085.666442 mm")),
])
pad7 = doc.addObject("PartDesign::Pad", "Pad006")
body5.addObject(pad7)
pad7.Profile = sketch9
pad7.Length = Q("0.25 in")
pad7.Reversed = True
body6 = doc.addObject("PartDesign::Body", "Body005")

sketch10 = doc.addObject("Sketcher::SketchObject", "Sketch009")
body6.addObject(sketch10)
sketch10.AttachmentSupport = (doc.getObject("XZ_Plane005"), [""])
sketch10.MapMode = "FlatFace"
sketch10.AttachmentOffset = App.Placement(V(0, 0, 48 * 25.4), App.Rotation())
sketch10.addGeometry([
    Part.LineSegment(V(80, 1505, 0), V(80, 1048, 0)),
    Part.LineSegment(V(80, 1048, 0), V(1299, 1048, 0)),
    Part.LineSegment(V(1299, 1048, 0), V(1299, 1505, 0)),
    Part.LineSegment(V(1299, 1505, 0), V(80, 1505, 0)),
], False)
sketch10.addConstraint([
    Sketcher.Constraint("Coincident", 0, 2, 1, 1),
    Sketcher.Constraint("Coincident", 1, 2, 2, 1),
    Sketcher.Constraint("Coincident", 2, 2, 3, 1),
    Sketcher.Constraint("Coincident", 3, 2, 0, 1),
    Sketcher.Constraint("Vertical", 0),
    Sketcher.Constraint("Horizontal", 1),
    Sketcher.Constraint("Vertical", 2),
    Sketcher.Constraint("Horizontal", 3),
    Sketcher.Constraint("DistanceX", 1, 1, 1, 2, Q("48 in")),
    Sketcher.Constraint("DistanceY", 0, 2, 0, 1, Q("18 in")),
    Sketcher.Constraint("DistanceX", -1, 1, 0, 2, Q("80.14157 mm")),
    Sketcher.Constraint("DistanceY", -1, 1, 0, 2, Q("1047.566442 mm")),
])
pad8 = doc.addObject("PartDesign::Pad", "Pad007")
body6.addObject(pad8)
pad8.Profile = sketch10
pad8.Length = Q("0.25 in")
pad8.Reversed = True

doc.recompute()
